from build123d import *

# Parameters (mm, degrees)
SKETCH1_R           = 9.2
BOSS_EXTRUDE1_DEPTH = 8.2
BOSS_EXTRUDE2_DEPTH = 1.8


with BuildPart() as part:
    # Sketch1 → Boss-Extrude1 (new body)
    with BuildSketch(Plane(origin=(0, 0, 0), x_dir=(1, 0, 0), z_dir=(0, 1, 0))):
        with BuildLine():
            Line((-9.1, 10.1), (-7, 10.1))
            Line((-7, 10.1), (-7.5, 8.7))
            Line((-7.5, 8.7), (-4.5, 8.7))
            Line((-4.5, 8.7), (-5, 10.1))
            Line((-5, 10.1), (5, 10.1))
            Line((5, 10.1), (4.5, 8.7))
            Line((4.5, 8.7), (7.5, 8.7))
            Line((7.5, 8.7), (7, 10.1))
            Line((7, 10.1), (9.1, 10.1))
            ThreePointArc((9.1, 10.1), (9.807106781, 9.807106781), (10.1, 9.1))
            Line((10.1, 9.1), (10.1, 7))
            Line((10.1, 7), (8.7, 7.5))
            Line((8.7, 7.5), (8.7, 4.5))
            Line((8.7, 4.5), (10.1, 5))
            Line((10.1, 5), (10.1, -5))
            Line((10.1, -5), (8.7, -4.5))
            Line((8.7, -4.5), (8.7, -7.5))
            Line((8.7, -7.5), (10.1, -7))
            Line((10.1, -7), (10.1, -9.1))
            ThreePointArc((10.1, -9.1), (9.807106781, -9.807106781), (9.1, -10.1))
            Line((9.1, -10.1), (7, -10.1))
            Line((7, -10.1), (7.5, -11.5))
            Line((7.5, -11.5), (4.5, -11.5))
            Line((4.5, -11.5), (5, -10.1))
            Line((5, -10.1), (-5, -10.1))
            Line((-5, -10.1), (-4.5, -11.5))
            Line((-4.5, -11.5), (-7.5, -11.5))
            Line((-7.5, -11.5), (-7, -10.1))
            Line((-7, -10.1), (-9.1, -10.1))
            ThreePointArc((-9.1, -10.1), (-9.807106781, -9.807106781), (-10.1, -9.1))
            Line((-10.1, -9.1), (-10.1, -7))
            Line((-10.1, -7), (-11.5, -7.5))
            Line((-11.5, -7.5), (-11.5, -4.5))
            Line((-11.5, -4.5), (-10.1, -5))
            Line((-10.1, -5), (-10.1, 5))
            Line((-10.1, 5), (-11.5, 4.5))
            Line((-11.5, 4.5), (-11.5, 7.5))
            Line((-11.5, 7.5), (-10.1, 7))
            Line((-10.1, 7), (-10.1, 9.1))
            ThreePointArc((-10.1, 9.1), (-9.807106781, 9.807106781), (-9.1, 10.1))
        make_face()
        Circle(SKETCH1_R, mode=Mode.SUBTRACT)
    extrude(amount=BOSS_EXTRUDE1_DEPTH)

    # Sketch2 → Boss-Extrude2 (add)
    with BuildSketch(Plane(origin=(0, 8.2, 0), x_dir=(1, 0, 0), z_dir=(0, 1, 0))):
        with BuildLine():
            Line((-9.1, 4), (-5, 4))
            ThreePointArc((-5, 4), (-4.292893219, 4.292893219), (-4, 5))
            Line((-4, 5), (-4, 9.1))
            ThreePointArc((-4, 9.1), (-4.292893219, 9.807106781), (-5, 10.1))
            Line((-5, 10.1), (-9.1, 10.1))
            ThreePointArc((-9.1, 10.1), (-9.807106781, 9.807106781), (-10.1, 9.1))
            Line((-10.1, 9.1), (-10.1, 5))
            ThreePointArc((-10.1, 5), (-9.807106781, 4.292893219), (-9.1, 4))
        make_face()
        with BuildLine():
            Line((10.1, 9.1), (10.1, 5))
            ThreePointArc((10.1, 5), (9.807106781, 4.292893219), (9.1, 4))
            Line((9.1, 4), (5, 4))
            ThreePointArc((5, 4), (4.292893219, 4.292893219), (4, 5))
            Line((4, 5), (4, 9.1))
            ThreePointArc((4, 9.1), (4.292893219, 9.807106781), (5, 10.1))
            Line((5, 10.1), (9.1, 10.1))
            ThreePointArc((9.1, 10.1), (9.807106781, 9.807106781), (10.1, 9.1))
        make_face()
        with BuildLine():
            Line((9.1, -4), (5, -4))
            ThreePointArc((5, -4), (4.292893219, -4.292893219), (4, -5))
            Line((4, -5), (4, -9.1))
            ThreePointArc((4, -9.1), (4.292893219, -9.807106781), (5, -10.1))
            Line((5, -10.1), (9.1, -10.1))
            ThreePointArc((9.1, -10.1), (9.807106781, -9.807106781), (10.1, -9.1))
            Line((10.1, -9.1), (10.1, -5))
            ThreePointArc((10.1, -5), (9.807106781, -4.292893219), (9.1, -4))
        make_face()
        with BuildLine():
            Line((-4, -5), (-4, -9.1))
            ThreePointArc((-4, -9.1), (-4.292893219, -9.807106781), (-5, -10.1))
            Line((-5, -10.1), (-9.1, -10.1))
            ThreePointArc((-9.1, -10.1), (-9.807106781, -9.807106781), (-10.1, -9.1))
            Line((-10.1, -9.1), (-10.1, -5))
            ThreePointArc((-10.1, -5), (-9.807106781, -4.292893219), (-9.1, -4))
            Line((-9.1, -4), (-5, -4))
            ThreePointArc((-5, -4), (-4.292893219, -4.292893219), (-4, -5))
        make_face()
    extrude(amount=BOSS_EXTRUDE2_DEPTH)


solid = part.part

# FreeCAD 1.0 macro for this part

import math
import FreeCAD as App
import Part
import Sketcher

doc = App.newDocument("Part")
body = doc.addObject("PartDesign::Body", "Body")

# Sketch on XZ plane
sketch1 = doc.addObject("Sketcher::SketchObject", "Sketch")
body.addObject(sketch1)
sketch1.AttachmentSupport = (doc.XZ_Plane, [""])
sketch1.MapMode = "FlatFace"
sketch1.addGeometry([
    Part.LineSegment(App.Vector(-7, -10.1, 0), App.Vector(-9.1, -10.1, 0)),  # 0
    Part.ArcOfCircle(Part.Circle(App.Vector(-9.1, -9.1, 0), App.Vector(0, 0, 1), 1), math.radians(-180), math.radians(-90)),  # 1
    Part.LineSegment(App.Vector(-10.1, -9.1, 0), App.Vector(-10.1, -7, 0)),  # 2
    Part.LineSegment(App.Vector(-10.1, -7, 0), App.Vector(-11.5, -7.5, 0)),  # 3
    Part.LineSegment(App.Vector(-11.5, -7.5, 0), App.Vector(-11.5, -4.5, 0)),  # 4
    Part.LineSegment(App.Vector(-11.5, -4.5, 0), App.Vector(-10.1, -5, 0)),  # 5
    Part.LineSegment(App.Vector(-10.1, -5, 0), App.Vector(-10.1, 5, 0)),  # 6
    Part.LineSegment(App.Vector(-10.1, 5, 0), App.Vector(-11.5, 4.5, 0)),  # 7
    Part.LineSegment(App.Vector(-11.5, 4.5, 0), App.Vector(-11.5, 7.5, 0)),  # 8
    Part.LineSegment(App.Vector(-11.5, 7.5, 0), App.Vector(-10.1, 7, 0)),  # 9
    Part.LineSegment(App.Vector(-10.1, 7, 0), App.Vector(-10.1, 9.1, 0)),  # 10
    Part.ArcOfCircle(Part.Circle(App.Vector(-9.1, 9.1, 0), App.Vector(0, 0, 1), 1), math.radians(90), math.radians(180)),  # 11
    Part.LineSegment(App.Vector(-9.1, 10.1, 0), App.Vector(-7, 10.1, 0)),  # 12
    Part.LineSegment(App.Vector(-7, 10.1, 0), App.Vector(-7.5, 11.5, 0)),  # 13
    Part.LineSegment(App.Vector(-7.5, 11.5, 0), App.Vector(-4.5, 11.5, 0)),  # 14
    Part.LineSegment(App.Vector(-4.5, 11.5, 0), App.Vector(-5, 10.1, 0)),  # 15
    Part.LineSegment(App.Vector(-5, 10.1, 0), App.Vector(5, 10.1, 0)),  # 16
    Part.LineSegment(App.Vector(5, 10.1, 0), App.Vector(4.5, 11.5, 0)),  # 17
    Part.LineSegment(App.Vector(4.5, 11.5, 0), App.Vector(7.5, 11.5, 0)),  # 18
    Part.LineSegment(App.Vector(7.5, 11.5, 0), App.Vector(7, 10.1, 0)),  # 19
    Part.LineSegment(App.Vector(7, 10.1, 0), App.Vector(9.1, 10.1, 0)),  # 20
    Part.ArcOfCircle(Part.Circle(App.Vector(9.1, 9.1, 0), App.Vector(0, 0, 1), 1), math.radians(0), math.radians(90)),  # 21
    Part.LineSegment(App.Vector(10.1, 9.1, 0), App.Vector(10.1, 7, 0)),  # 22
    Part.LineSegment(App.Vector(10.1, 7, 0), App.Vector(8.7, 7.5, 0)),  # 23
    Part.LineSegment(App.Vector(8.7, 7.5, 0), App.Vector(8.7, 4.5, 0)),  # 24
    Part.LineSegment(App.Vector(8.7, 4.5, 0), App.Vector(10.1, 5, 0)),  # 25
    Part.LineSegment(App.Vector(10.1, 5, 0), App.Vector(10.1, -5, 0)),  # 26
    Part.LineSegment(App.Vector(10.1, -5, 0), App.Vector(8.7, -4.5, 0)),  # 27
    Part.LineSegment(App.Vector(8.7, -4.5, 0), App.Vector(8.7, -7.5, 0)),  # 28
    Part.LineSegment(App.Vector(8.7, -7.5, 0), App.Vector(10.1, -7, 0)),  # 29
    Part.LineSegment(App.Vector(10.1, -7, 0), App.Vector(10.1, -9.1, 0)),  # 30
    Part.ArcOfCircle(Part.Circle(App.Vector(9.1, -9.1, 0), App.Vector(0, 0, 1), 1), math.radians(-90), math.radians(0)),  # 31
    Part.LineSegment(App.Vector(9.1, -10.1, 0), App.Vector(7, -10.1, 0)),  # 32
    Part.LineSegment(App.Vector(7, -10.1, 0), App.Vector(7.5, -8.7, 0)),  # 33
    Part.LineSegment(App.Vector(7.5, -8.7, 0), App.Vector(4.5, -8.7, 0)),  # 34
    Part.LineSegment(App.Vector(4.5, -8.7, 0), App.Vector(5, -10.1, 0)),  # 35
    Part.LineSegment(App.Vector(5, -10.1, 0), App.Vector(-5, -10.1, 0)),  # 36
    Part.LineSegment(App.Vector(-5, -10.1, 0), App.Vector(-4.5, -8.7, 0)),  # 37
    Part.LineSegment(App.Vector(-4.5, -8.7, 0), App.Vector(-7.5, -8.7, 0)),  # 38
    Part.LineSegment(App.Vector(-7.5, -8.7, 0), App.Vector(-7, -10.1, 0)),  # 39
    Part.Circle(App.Vector(0, 0, 0), App.Vector(0, 0, 1), 9.2),  # 40
], False)
sketch1.addConstraint([
    Sketcher.Constraint("Tangent", 0, 2, 1, 2),
    Sketcher.Constraint("Tangent", 1, 1, 2, 1),
    Sketcher.Constraint("Coincident", 2, 2, 3, 1),
    Sketcher.Constraint("Coincident", 3, 2, 4, 1),
    Sketcher.Constraint("Coincident", 4, 2, 5, 1),
    Sketcher.Constraint("Coincident", 5, 2, 6, 1),
    Sketcher.Constraint("Coincident", 6, 2, 7, 1),
    Sketcher.Constraint("Coincident", 7, 2, 8, 1),
    Sketcher.Constraint("Coincident", 8, 2, 9, 1),
    Sketcher.Constraint("Coincident", 9, 2, 10, 1),
    Sketcher.Constraint("Tangent", 10, 2, 11, 2),
    Sketcher.Constraint("Tangent", 11, 1, 12, 1),
    Sketcher.Constraint("Coincident", 12, 2, 13, 1),
    Sketcher.Constraint("Coincident", 13, 2, 14, 1),
    Sketcher.Constraint("Coincident", 14, 2, 15, 1),
    Sketcher.Constraint("Coincident", 15, 2, 16, 1),
    Sketcher.Constraint("Coincident", 16, 2, 17, 1),
    Sketcher.Constraint("Coincident", 17, 2, 18, 1),
    Sketcher.Constraint("Coincident", 18, 2, 19, 1),
    Sketcher.Constraint("Coincident", 19, 2, 20, 1),
    Sketcher.Constraint("Tangent", 20, 2, 21, 2),
    Sketcher.Constraint("Tangent", 21, 1, 22, 1),
    Sketcher.Constraint("Coincident", 22, 2, 23, 1),
    Sketcher.Constraint("Coincident", 23, 2, 24, 1),
    Sketcher.Constraint("Coincident", 24, 2, 25, 1),
    Sketcher.Constraint("Coincident", 25, 2, 26, 1),
    Sketcher.Constraint("Coincident", 26, 2, 27, 1),
    Sketcher.Constraint("Coincident", 27, 2, 28, 1),
    Sketcher.Constraint("Coincident", 28, 2, 29, 1),
    Sketcher.Constraint("Coincident", 29, 2, 30, 1),
    Sketcher.Constraint("Tangent", 30, 2, 31, 2),
    Sketcher.Constraint("Tangent", 31, 1, 32, 1),
    Sketcher.Constraint("Coincident", 32, 2, 33, 1),
    Sketcher.Constraint("Coincident", 33, 2, 34, 1),
    Sketcher.Constraint("Coincident", 34, 2, 35, 1),
    Sketcher.Constraint("Coincident", 35, 2, 36, 1),
    Sketcher.Constraint("Coincident", 36, 2, 37, 1),
    Sketcher.Constraint("Coincident", 37, 2, 38, 1),
    Sketcher.Constraint("Coincident", 38, 2, 39, 1),
    Sketcher.Constraint("Coincident", 39, 2, 0, 1),
    Sketcher.Constraint("Horizontal", 0),
    Sketcher.Constraint("Vertical", 2),
    Sketcher.Constraint("Vertical", 4),
    Sketcher.Constraint("Vertical", 6),
    Sketcher.Constraint("Vertical", 8),
    Sketcher.Constraint("Vertical", 10),
    Sketcher.Constraint("Horizontal", 12),
    Sketcher.Constraint("Horizontal", 14),
    Sketcher.Constraint("Horizontal", 16),
    Sketcher.Constraint("Horizontal", 18),
    Sketcher.Constraint("Horizontal", 20),
    Sketcher.Constraint("Vertical", 22),
    Sketcher.Constraint("Vertical", 24),
    Sketcher.Constraint("Vertical", 26),
    Sketcher.Constraint("Vertical", 28),
    Sketcher.Constraint("Vertical", 30),
    Sketcher.Constraint("Horizontal", 32),
    Sketcher.Constraint("Horizontal", 34),
    Sketcher.Constraint("Horizontal", 36),
    Sketcher.Constraint("Horizontal", 38),
    Sketcher.Constraint("Coincident", 40, 3, -1, 1),
    Sketcher.Constraint("Equal", 1, 11),
    Sketcher.Constraint("Equal", 11, 21),
    Sketcher.Constraint("Equal", 21, 31),
    Sketcher.Constraint("Symmetric", 1, 3, 21, 3, -1, 1),
    Sketcher.Constraint("Symmetric", 11, 3, 31, 3, -1, 1),
    Sketcher.Constraint("Symmetric", 5, 2, 25, 2, -1, 1),
    Sketcher.Constraint("Symmetric", 15, 2, 35, 2, -1, 1),
    Sketcher.Constraint("Symmetric", 11, 3, 21, 3, -2),
    Sketcher.Constraint("Symmetric", 14, 2, 17, 2, -2),
    Sketcher.Constraint("Symmetric", 34, 2, 37, 2, -2),
    Sketcher.Constraint("Symmetric", 4, 2, 7, 2, -1),
    Sketcher.Constraint("Symmetric", 24, 2, 27, 2, -1),
    Sketcher.Constraint("Parallel", 3, 7),
    Sketcher.Constraint("Parallel", 5, 9),
    Sketcher.Constraint("Perpendicular", 7, 13),
    Sketcher.Constraint("Perpendicular", 9, 15),
    Sketcher.Constraint("Parallel", 13, 17),
    Sketcher.Constraint("Parallel", 15, 19),
    Sketcher.Constraint("Perpendicular", 19, 23),
    Sketcher.Constraint("Perpendicular", 17, 25),
    Sketcher.Constraint("Parallel", 23, 27),
    Sketcher.Constraint("Parallel", 25, 29),
    Sketcher.Constraint("Perpendicular", 27, 33),
    Sketcher.Constraint("Perpendicular", 29, 35),
    Sketcher.Constraint("Parallel", 33, 37),
    Sketcher.Constraint("Parallel", 35, 39),
    Sketcher.Constraint("Horizontal", 12, 2, 15, 2),
    Sketcher.Constraint("Horizontal", 9, 2, 22, 2),
    Sketcher.Constraint("Horizontal", 8, 2, 23, 2),
    Sketcher.Constraint("Horizontal", 7, 2, 24, 2),
    Sketcher.Constraint("Horizontal", 6, 2, 25, 2),
    Sketcher.Constraint("Horizontal", 3, 2, 28, 2),
    Sketcher.Constraint("Vertical", 19, 2, 32, 2),
    Sketcher.Constraint("Vertical", 18, 2, 33, 2),
    Sketcher.Constraint("Vertical", 13, 2, 38, 2),
    Sketcher.Constraint("Equal", 14, 18),
    Sketcher.Constraint("Equal", 32, 2),
    Sketcher.Constraint("Equal", 38, 4),
    Sketcher.Constraint("Equal", 36, 6),
    Sketcher.Constraint("Equal", 4, 8),
    Sketcher.Constraint("Equal", 9, 13),
    Sketcher.Constraint("Radius", 1, 1.0),
    Sketcher.Constraint("Diameter", 40, 18.4),
    Sketcher.Constraint("DistanceX", 14, 1, 14, 2, 3.0),
    Sketcher.Constraint("DistanceX", 16, 1, 16, 2, 10.0),
    Sketcher.Constraint("DistanceX", 0, 2, 0, 1, 2.1),
    Sketcher.Constraint("DistanceY", 2, 2, -1, 1, 7.0),
    Sketcher.Constraint("DistanceX", 3, 2, -1, 1, 11.5),
])
pad1 = doc.addObject("PartDesign::Pad", "Pad")
body.addObject(pad1)
pad1.Profile = sketch1
pad1.Length = 8.2
pad1.Reversed = True

# Sketch on XZ plane
sketch2 = doc.addObject("Sketcher::SketchObject", "Sketch001")
body.addObject(sketch2)
sketch2.AttachmentSupport = (doc.XZ_Plane, [""])
sketch2.MapMode = "FlatFace"
sketch2.AttachmentOffset = App.Placement(App.Vector(0, 0, -8.2), App.Rotation())
sketch2.addGeometry([
    Part.LineSegment(App.Vector(-9.1, -4, 0), App.Vector(-5, -4, 0)),  # 0
    Part.ArcOfCircle(Part.Circle(App.Vector(-5, -5, 0), App.Vector(0, 0, 1), 1), math.radians(0), math.radians(90)),  # 1
    Part.LineSegment(App.Vector(-4, -5, 0), App.Vector(-4, -9.1, 0)),  # 2
    Part.ArcOfCircle(Part.Circle(App.Vector(-5, -9.1, 0), App.Vector(0, 0, 1), 1), math.radians(-90), math.radians(0)),  # 3
    Part.LineSegment(App.Vector(-5, -10.1, 0), App.Vector(-9.1, -10.1, 0)),  # 4
    Part.ArcOfCircle(Part.Circle(App.Vector(-9.1, -9.1, 0), App.Vector(0, 0, 1), 1), math.radians(-180), math.radians(-90)),  # 5
    Part.LineSegment(App.Vector(-10.1, -9.1, 0), App.Vector(-10.1, -5, 0)),  # 6
    Part.ArcOfCircle(Part.Circle(App.Vector(-9.1, -5, 0), App.Vector(0, 0, 1), 1), math.radians(90), math.radians(180)),  # 7
    Part.LineSegment(App.Vector(10.1, -5, 0), App.Vector(10.1, -9.1, 0)),  # 8
    Part.ArcOfCircle(Part.Circle(App.Vector(9.1, -9.1, 0), App.Vector(0, 0, 1), 1), math.radians(-90), math.radians(0)),  # 9
    Part.LineSegment(App.Vector(9.1, -10.1, 0), App.Vector(5, -10.1, 0)),  # 10
    Part.ArcOfCircle(Part.Circle(App.Vector(5, -9.1, 0), App.Vector(0, 0, 1), 1), math.radians(-180), math.radians(-90)),  # 11
    Part.LineSegment(App.Vector(4, -9.1, 0), App.Vector(4, -5, 0)),  # 12
    Part.ArcOfCircle(Part.Circle(App.Vector(5, -5, 0), App.Vector(0, 0, 1), 1), math.radians(90), math.radians(180)),  # 13
    Part.LineSegment(App.Vector(5, -4, 0), App.Vector(9.1, -4, 0)),  # 14
    Part.ArcOfCircle(Part.Circle(App.Vector(9.1, -5, 0), App.Vector(0, 0, 1), 1), math.radians(0), math.radians(90)),  # 15
    Part.LineSegment(App.Vector(9.1, 4, 0), App.Vector(5, 4, 0)),  # 16
    Part.ArcOfCircle(Part.Circle(App.Vector(5, 5, 0), App.Vector(0, 0, 1), 1), math.radians(-180), math.radians(-90)),  # 17
    Part.LineSegment(App.Vector(4, 5, 0), App.Vector(4, 9.1, 0)),  # 18
    Part.ArcOfCircle(Part.Circle(App.Vector(5, 9.1, 0), App.Vector(0, 0, 1), 1), math.radians(90), math.radians(180)),  # 19
    Part.LineSegment(App.Vector(5, 10.1, 0), App.Vector(9.1, 10.1, 0)),  # 20
    Part.ArcOfCircle(Part.Circle(App.Vector(9.1, 9.1, 0), App.Vector(0, 0, 1), 1), math.radians(0), math.radians(90)),  # 21
    Part.LineSegment(App.Vector(10.1, 9.1, 0), App.Vector(10.1, 5, 0)),  # 22
    Part.ArcOfCircle(Part.Circle(App.Vector(9.1, 5, 0), App.Vector(0, 0, 1), 1), math.radians(-90), math.radians(0)),  # 23
    Part.LineSegment(App.Vector(-4, 9.1, 0), App.Vector(-4, 5, 0)),  # 24
    Part.ArcOfCircle(Part.Circle(App.Vector(-5, 5, 0), App.Vector(0, 0, 1), 1), math.radians(-90), math.radians(0)),  # 25
    Part.LineSegment(App.Vector(-5, 4, 0), App.Vector(-9.1, 4, 0)),  # 26
    Part.ArcOfCircle(Part.Circle(App.Vector(-9.1, 5, 0), App.Vector(0, 0, 1), 1), math.radians(-180), math.radians(-90)),  # 27
    Part.LineSegment(App.Vector(-10.1, 5, 0), App.Vector(-10.1, 9.1, 0)),  # 28
    Part.ArcOfCircle(Part.Circle(App.Vector(-9.1, 9.1, 0), App.Vector(0, 0, 1), 1), math.radians(90), math.radians(180)),  # 29
    Part.LineSegment(App.Vector(-9.1, 10.1, 0), App.Vector(-5, 10.1, 0)),  # 30
    Part.ArcOfCircle(Part.Circle(App.Vector(-5, 9.1, 0), App.Vector(0, 0, 1), 1), math.radians(0), math.radians(90)),  # 31
], False)
sketch2.addConstraint([
    Sketcher.Constraint("Tangent", 0, 2, 1, 2),
    Sketcher.Constraint("Tangent", 1, 1, 2, 1),
    Sketcher.Constraint("Tangent", 2, 2, 3, 2),
    Sketcher.Constraint("Tangent", 3, 1, 4, 1),
    Sketcher.Constraint("Tangent", 4, 2, 5, 2),
    Sketcher.Constraint("Tangent", 5, 1, 6, 1),
    Sketcher.Constraint("Tangent", 6, 2, 7, 2),
    Sketcher.Constraint("Tangent", 7, 1, 0, 1),
    Sketcher.Constraint("Tangent", 8, 2, 9, 2),
    Sketcher.Constraint("Tangent", 9, 1, 10, 1),
    Sketcher.Constraint("Tangent", 10, 2, 11, 2),
    Sketcher.Constraint("Tangent", 11, 1, 12, 1),
    Sketcher.Constraint("Tangent", 12, 2, 13, 2),
    Sketcher.Constraint("Tangent", 13, 1, 14, 1),
    Sketcher.Constraint("Tangent", 14, 2, 15, 2),
    Sketcher.Constraint("Tangent", 15, 1, 8, 1),
    Sketcher.Constraint("Tangent", 16, 2, 17, 2),
    Sketcher.Constraint("Tangent", 17, 1, 18, 1),
    Sketcher.Constraint("Tangent", 18, 2, 19, 2),
    Sketcher.Constraint("Tangent", 19, 1, 20, 1),
    Sketcher.Constraint("Tangent", 20, 2, 21, 2),
    Sketcher.Constraint("Tangent", 21, 1, 22, 1),
    Sketcher.Constraint("Tangent", 22, 2, 23, 2),
    Sketcher.Constraint("Tangent", 23, 1, 16, 1),
    Sketcher.Constraint("Tangent", 24, 2, 25, 2),
    Sketcher.Constraint("Tangent", 25, 1, 26, 1),
    Sketcher.Constraint("Tangent", 26, 2, 27, 2),
    Sketcher.Constraint("Tangent", 27, 1, 28, 1),
    Sketcher.Constraint("Tangent", 28, 2, 29, 2),
    Sketcher.Constraint("Tangent", 29, 1, 30, 1),
    Sketcher.Constraint("Tangent", 30, 2, 31, 2),
    Sketcher.Constraint("Tangent", 31, 1, 24, 1),
    Sketcher.Constraint("Horizontal", 0),
    Sketcher.Constraint("Vertical", 2),
    Sketcher.Constraint("Horizontal", 4),
    Sketcher.Constraint("Vertical", 6),
    Sketcher.Constraint("Vertical", 8),
    Sketcher.Constraint("Horizontal", 10),
    Sketcher.Constraint("Vertical", 12),
    Sketcher.Constraint("Horizontal", 14),
    Sketcher.Constraint("Horizontal", 16),
    Sketcher.Constraint("Vertical", 18),
    Sketcher.Constraint("Horizontal", 20),
    Sketcher.Constraint("Vertical", 22),
    Sketcher.Constraint("Vertical", 24),
    Sketcher.Constraint("Horizontal", 26),
    Sketcher.Constraint("Vertical", 28),
    Sketcher.Constraint("Horizontal", 30),
    Sketcher.Constraint("Equal", 1, 3),
    Sketcher.Constraint("Equal", 3, 5),
    Sketcher.Constraint("Equal", 5, 7),
    Sketcher.Constraint("Equal", 7, 9),
    Sketcher.Constraint("Equal", 9, 11),
    Sketcher.Constraint("Equal", 11, 13),
    Sketcher.Constraint("Equal", 13, 15),
    Sketcher.Constraint("Equal", 15, 17),
    Sketcher.Constraint("Equal", 17, 19),
    Sketcher.Constraint("Equal", 19, 21),
    Sketcher.Constraint("Equal", 21, 23),
    Sketcher.Constraint("Equal", 23, 25),
    Sketcher.Constraint("Equal", 25, 27),
    Sketcher.Constraint("Equal", 27, 29),
    Sketcher.Constraint("Equal", 29, 31),
    Sketcher.Constraint("Symmetric", 1, 3, 17, 3, -1, 1),
    Sketcher.Constraint("Symmetric", 5, 3, 21, 3, -1, 1),
    Sketcher.Constraint("Symmetric", 13, 3, 25, 3, -1, 1),
    Sketcher.Constraint("Symmetric", 9, 3, 29, 3, -1, 1),
    Sketcher.Constraint("Symmetric", 5, 3, 9, 3, -2),
    Sketcher.Constraint("Symmetric", 1, 3, 13, 3, -2),
    Sketcher.Constraint("Equal", 30, 2),
    Sketcher.Constraint("Radius", 1, 1.0),
    Sketcher.Constraint("DistanceX", 0, 1, 0, 2, 4.1),
    Sketcher.Constraint("DistanceX", 1, 3, -1, 1, 5.0),
    Sketcher.Constraint("DistanceY", 1, 3, -1, 1, 5.0),
])
pad2 = doc.addObject("PartDesign::Pad", "Pad001")
body.addObject(pad2)
pad2.Profile = sketch2
pad2.Length = 1.8
pad2.Reversed = True

doc.recompute()
